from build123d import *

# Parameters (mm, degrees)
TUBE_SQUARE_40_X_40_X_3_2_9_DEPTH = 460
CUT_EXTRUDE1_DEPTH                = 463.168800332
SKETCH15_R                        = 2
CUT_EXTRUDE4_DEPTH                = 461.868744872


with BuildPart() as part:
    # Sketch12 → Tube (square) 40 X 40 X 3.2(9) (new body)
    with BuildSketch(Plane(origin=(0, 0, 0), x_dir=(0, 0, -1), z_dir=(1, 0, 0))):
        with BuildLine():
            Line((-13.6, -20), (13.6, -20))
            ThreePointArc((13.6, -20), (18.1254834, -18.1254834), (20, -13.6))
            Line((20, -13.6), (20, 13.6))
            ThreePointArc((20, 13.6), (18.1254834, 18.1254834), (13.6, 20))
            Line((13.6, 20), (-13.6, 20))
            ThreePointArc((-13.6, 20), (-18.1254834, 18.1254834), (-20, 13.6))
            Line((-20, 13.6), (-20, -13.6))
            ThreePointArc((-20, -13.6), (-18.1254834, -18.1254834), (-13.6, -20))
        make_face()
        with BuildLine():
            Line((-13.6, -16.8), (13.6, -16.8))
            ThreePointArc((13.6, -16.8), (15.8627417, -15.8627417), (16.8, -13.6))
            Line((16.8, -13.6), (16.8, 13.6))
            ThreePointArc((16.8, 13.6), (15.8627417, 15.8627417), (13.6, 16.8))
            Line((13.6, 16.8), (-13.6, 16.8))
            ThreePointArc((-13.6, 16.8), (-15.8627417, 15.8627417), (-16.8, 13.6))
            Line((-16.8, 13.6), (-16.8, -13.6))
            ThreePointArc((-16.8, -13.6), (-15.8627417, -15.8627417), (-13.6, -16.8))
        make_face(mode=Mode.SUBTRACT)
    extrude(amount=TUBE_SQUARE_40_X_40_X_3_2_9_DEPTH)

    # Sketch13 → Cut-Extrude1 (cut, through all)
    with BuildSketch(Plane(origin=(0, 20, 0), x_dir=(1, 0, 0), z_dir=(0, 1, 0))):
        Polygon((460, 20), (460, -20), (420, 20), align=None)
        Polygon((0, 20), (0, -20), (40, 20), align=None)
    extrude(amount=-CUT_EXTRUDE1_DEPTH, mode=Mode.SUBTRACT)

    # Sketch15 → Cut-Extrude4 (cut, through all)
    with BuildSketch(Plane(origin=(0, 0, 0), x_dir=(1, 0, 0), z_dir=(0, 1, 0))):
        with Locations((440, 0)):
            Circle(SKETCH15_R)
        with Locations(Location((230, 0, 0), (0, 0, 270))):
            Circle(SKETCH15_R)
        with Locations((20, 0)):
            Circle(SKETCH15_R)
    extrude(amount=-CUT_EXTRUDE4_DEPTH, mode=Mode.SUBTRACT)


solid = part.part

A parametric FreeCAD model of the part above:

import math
import FreeCAD as App
import Part
import Sketcher
from FreeCAD import Vector


def add_polygon(sketch, points):
    """Adds a closed chain of lines whose ends are joined by coincident constraints."""
    first, n = sketch.GeometryCount, len(points)
    for a, b in zip(points, points[1:] + points[:1]):
        sketch.addGeometry(Part.LineSegment(App.Vector(*a, 0), App.Vector(*b, 0)), False)
    for i in range(n):
        sketch.addConstraint(Sketcher.Constraint("Coincident", first + i, 2, first + (i + 1) % n, 1))

doc = App.newDocument("Part")
body = doc.addObject("PartDesign::Body", "Body")

sketch1 = doc.addObject("Sketcher::SketchObject", "Sketch")
body.addObject(sketch1)
sketch1.AttachmentSupport = (doc.YZ_Plane, [""])
sketch1.MapMode = "FlatFace"
sketch1.addGeometry([
    Part.LineSegment(Vector(-20, 13.6, 0), Vector(-20, -13.6, 0)),
    Part.ArcOfCircle(Part.Circle(Vector(-13.6, -13.6, 0), Vector(0, 0, 1), 6.4), math.radians(180), math.radians(270)),
    Part.LineSegment(Vector(-13.6, -20, 0), Vector(13.6, -20, 0)),
    Part.ArcOfCircle(Part.Circle(Vector(13.6, -13.6, 0), Vector(0, 0, 1), 6.4), math.radians(-90), math.radians(0)),
    Part.LineSegment(Vector(20, -13.6, 0), Vector(20, 13.6, 0)),
    Part.ArcOfCircle(Part.Circle(Vector(13.6, 13.6, 0), Vector(0, 0, 1), 6.4), math.radians(0), math.radians(90)),
    Part.LineSegment(Vector(13.6, 20, 0), Vector(-13.6, 20, 0)),
    Part.ArcOfCircle(Part.Circle(Vector(-13.6, 13.6, 0), Vector(0, 0, 1), 6.4), math.radians(90), math.radians(180)),
    Part.LineSegment(Vector(-16.8, -13.6, 0), Vector(-16.8, 13.6, 0)),
    Part.ArcOfCircle(Part.Circle(Vector(-13.6, 13.6, 0), Vector(0, 0, 1), 3.2), math.radians(90), math.radians(180)),
    Part.LineSegment(Vector(-13.6, 16.8, 0), Vector(13.6, 16.8, 0)),
    Part.ArcOfCircle(Part.Circle(Vector(13.6, 13.6, 0), Vector(0, 0, 1), 3.2), math.radians(0), math.radians(90)),
    Part.LineSegment(Vector(16.8, 13.6, 0), Vector(16.8, -13.6, 0)),
    Part.ArcOfCircle(Part.Circle(Vector(13.6, -13.6, 0), Vector(0, 0, 1), 3.2), math.radians(-90), math.radians(0)),
    Part.LineSegment(Vector(13.6, -16.8, 0), Vector(-13.6, -16.8, 0)),
    Part.ArcOfCircle(Part.Circle(Vector(-13.6, -13.6, 0), Vector(0, 0, 1), 3.2), math.radians(180), math.radians(270)),
], False)
sketch1.addConstraint([
    Sketcher.Constraint("Tangent", 0, 2, 1, 1),
    Sketcher.Constraint("Tangent", 1, 2, 2, 1),
    Sketcher.Constraint("Tangent", 2, 2, 3, 1),
    Sketcher.Constraint("Tangent", 3, 2, 4, 1),
    Sketcher.Constraint("Tangent", 4, 2, 5, 1),
    Sketcher.Constraint("Tangent", 5, 2, 6, 1),
    Sketcher.Constraint("Tangent", 6, 2, 7, 1),
    Sketcher.Constraint("Tangent", 7, 2, 0, 1),
    Sketcher.Constraint("Tangent", 8, 2, 9, 2),
    Sketcher.Constraint("Tangent", 9, 1, 10, 1),
    Sketcher.Constraint("Tangent", 10, 2, 11, 2),
    Sketcher.Constraint("Tangent", 11, 1, 12, 1),
    Sketcher.Constraint("Tangent", 12, 2, 13, 2),
    Sketcher.Constraint("Tangent", 13, 1, 14, 1),
    Sketcher.Constraint("Tangent", 14, 2, 15, 2),
    Sketcher.Constraint("Tangent", 15, 1, 8, 1),
    Sketcher.Constraint("Vertical", 0),
    Sketcher.Constraint("Horizontal", 2),
    Sketcher.Constraint("Vertical", 4),
    Sketcher.Constraint("Horizontal", 6),
    Sketcher.Constraint("Vertical", 8),
    Sketcher.Constraint("Horizontal", 10),
    Sketcher.Constraint("Vertical", 12),
    Sketcher.Constraint("Horizontal", 14),
    Sketcher.Constraint("Coincident", 9, 3, 7, 3),
    Sketcher.Constraint("Coincident", 11, 3, 5, 3),
    Sketcher.Constraint("Coincident", 13, 3, 3, 3),
    Sketcher.Constraint("Equal", 1, 3),
    Sketcher.Constraint("Equal", 3, 5),
    Sketcher.Constraint("Equal", 5, 7),
    Sketcher.Constraint("Equal", 13, 15),
    Sketcher.Constraint("Symmetric", 1, 3, 5, 3, -1, 1),
    Sketcher.Constraint("Equal", 14, 0),
    Sketcher.Constraint("Radius", 1, 6.4),
    Sketcher.Constraint("Radius", 9, 3.2),
    Sketcher.Constraint("DistanceX", 2, 1, 2, 2, 27.2),
])
pad1 = doc.addObject("PartDesign::Pad", "Pad")
body.addObject(pad1)
pad1.Profile = sketch1
pad1.Length = 460

sketch2 = doc.addObject("Sketcher::SketchObject", "Sketch001")
body.addObject(sketch2)
sketch2.AttachmentSupport = (doc.XZ_Plane, [""])
sketch2.MapMode = "FlatFace"
sketch2.AttachmentOffset = App.Placement(Vector(0, 0, -20), App.Rotation())
add_polygon(sketch2, [(460, 20), (460, -20), (420, -20)])
add_polygon(sketch2, [(0, -20), (0, 20), (40, -20)])
sketch2.addConstraint([
    Sketcher.Constraint("Vertical", 0),
    Sketcher.Constraint("Horizontal", 1),
    Sketcher.Constraint("Vertical", 3),
    Sketcher.Constraint("Horizontal", 5),
    Sketcher.Constraint("Symmetric", 3, 2, 5, 2, -1, 1),
    Sketcher.Constraint("Perpendicular", 2, 4),
    Sketcher.Constraint("Horizontal", 2, 2, 3, 2),
    Sketcher.Constraint("Horizontal", 1, 2, 4, 2),
    Sketcher.Constraint("Equal", 1, 5),
    Sketcher.Constraint("DistanceX", 1, 2, 1, 1, 40.0),
    Sketcher.Constraint("DistanceX", -1, 1, 0, 2, 460.0),
])
pocket1 = doc.addObject("PartDesign::Pocket", "Pocket")
body.addObject(pocket1)
pocket1.Profile = sketch2
pocket1.Type = "ThroughAll"
pocket1.Reversed = True

sketch3 = doc.addObject("Sketcher::SketchObject", "Sketch002")
body.addObject(sketch3)
sketch3.AttachmentSupport = (doc.XZ_Plane, [""])
sketch3.MapMode = "FlatFace"
sketch3.addGeometry([
    Part.Circle(Vector(440, 0, 0), Vector(0, 0, 1), 2),
    Part.Circle(Vector(230, 0, 0), Vector(0, 0, 1), 2),
    Part.Circle(Vector(20, 0, 0), Vector(0, 0, 1), 2),
], False)
sketch3.addConstraint([
    Sketcher.Constraint("Equal", 0, 1),
    Sketcher.Constraint("Equal", 1, 2),
    Sketcher.Constraint("PointOnObject", 0, 3, -1),
    Sketcher.Constraint("PointOnObject", 1, 3, -1),
    Sketcher.Constraint("PointOnObject", 2, 3, -1),
    Sketcher.Constraint("Diameter", 0, 4.0),
    Sketcher.Constraint("DistanceX", -1, 1, 0, 3, 440.0),
    Sketcher.Constraint("DistanceX", -1, 1, 1, 3, 230.0),
    Sketcher.Constraint("DistanceX", -1, 1, 2, 3, 20.0),
])
pocket2 = doc.addObject("PartDesign::Pocket", "Pocket001")
body.addObject(pocket2)
pocket2.Profile = sketch3
pocket2.Type = "ThroughAll"
pocket2.Reversed = True

doc.recompute()
